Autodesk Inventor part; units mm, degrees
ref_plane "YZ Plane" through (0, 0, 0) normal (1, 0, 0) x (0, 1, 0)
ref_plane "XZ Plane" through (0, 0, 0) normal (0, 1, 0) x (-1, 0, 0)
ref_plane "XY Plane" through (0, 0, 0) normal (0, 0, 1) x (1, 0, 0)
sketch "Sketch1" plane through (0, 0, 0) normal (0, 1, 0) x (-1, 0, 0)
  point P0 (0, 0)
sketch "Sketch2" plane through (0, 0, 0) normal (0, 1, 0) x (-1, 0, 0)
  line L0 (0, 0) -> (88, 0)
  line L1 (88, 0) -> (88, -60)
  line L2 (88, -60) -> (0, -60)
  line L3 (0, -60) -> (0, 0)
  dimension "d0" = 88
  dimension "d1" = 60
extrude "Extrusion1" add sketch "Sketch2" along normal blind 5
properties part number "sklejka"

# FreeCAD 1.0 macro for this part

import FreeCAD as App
import Part
import Sketcher


def add_polygon(sketch, points):
    """Adds a closed chain of lines whose ends are joined by coincident constraints."""
    first, n = sketch.GeometryCount, len(points)
    for a, b in zip(points, points[1:] + points[:1]):
        sketch.addGeometry(Part.LineSegment(App.Vector(*a, 0), App.Vector(*b, 0)), False)
    for i in range(n):
        sketch.addConstraint(Sketcher.Constraint("Coincident", first + i, 2, first + (i + 1) % n, 1))

doc = App.newDocument("Part")
body = doc.addObject("PartDesign::Body", "Body")

sketch1 = body.newObject("Sketcher::SketchObject", "Sketch")
sketch1.AttachmentSupport = (doc.getObject("XZ_Plane"), [""])
sketch1.MapMode = "FlatFace"
add_polygon(sketch1, [(-88, 0), (0, 0), (0, -60), (-88, -60)])
sketch1.addConstraint(Sketcher.Constraint("Horizontal", 0))
sketch1.addConstraint(Sketcher.Constraint("Vertical", 1))
sketch1.addConstraint(Sketcher.Constraint("Horizontal", 2))
sketch1.addConstraint(Sketcher.Constraint("Vertical", 3))
sketch1.addConstraint(Sketcher.Constraint("Coincident", 0, 2, -1, 1))
sketch1.addConstraint(Sketcher.Constraint("DistanceX", 0, 1, 0, 2, 88.0))
sketch1.addConstraint(Sketcher.Constraint("DistanceY", 1, 2, 1, 1, 60.0))
pad1 = body.newObject("PartDesign::Pad", "Pad")
pad1.Profile = sketch1
pad1.Length = 5
pad1.Reversed = True

doc.recompute()
